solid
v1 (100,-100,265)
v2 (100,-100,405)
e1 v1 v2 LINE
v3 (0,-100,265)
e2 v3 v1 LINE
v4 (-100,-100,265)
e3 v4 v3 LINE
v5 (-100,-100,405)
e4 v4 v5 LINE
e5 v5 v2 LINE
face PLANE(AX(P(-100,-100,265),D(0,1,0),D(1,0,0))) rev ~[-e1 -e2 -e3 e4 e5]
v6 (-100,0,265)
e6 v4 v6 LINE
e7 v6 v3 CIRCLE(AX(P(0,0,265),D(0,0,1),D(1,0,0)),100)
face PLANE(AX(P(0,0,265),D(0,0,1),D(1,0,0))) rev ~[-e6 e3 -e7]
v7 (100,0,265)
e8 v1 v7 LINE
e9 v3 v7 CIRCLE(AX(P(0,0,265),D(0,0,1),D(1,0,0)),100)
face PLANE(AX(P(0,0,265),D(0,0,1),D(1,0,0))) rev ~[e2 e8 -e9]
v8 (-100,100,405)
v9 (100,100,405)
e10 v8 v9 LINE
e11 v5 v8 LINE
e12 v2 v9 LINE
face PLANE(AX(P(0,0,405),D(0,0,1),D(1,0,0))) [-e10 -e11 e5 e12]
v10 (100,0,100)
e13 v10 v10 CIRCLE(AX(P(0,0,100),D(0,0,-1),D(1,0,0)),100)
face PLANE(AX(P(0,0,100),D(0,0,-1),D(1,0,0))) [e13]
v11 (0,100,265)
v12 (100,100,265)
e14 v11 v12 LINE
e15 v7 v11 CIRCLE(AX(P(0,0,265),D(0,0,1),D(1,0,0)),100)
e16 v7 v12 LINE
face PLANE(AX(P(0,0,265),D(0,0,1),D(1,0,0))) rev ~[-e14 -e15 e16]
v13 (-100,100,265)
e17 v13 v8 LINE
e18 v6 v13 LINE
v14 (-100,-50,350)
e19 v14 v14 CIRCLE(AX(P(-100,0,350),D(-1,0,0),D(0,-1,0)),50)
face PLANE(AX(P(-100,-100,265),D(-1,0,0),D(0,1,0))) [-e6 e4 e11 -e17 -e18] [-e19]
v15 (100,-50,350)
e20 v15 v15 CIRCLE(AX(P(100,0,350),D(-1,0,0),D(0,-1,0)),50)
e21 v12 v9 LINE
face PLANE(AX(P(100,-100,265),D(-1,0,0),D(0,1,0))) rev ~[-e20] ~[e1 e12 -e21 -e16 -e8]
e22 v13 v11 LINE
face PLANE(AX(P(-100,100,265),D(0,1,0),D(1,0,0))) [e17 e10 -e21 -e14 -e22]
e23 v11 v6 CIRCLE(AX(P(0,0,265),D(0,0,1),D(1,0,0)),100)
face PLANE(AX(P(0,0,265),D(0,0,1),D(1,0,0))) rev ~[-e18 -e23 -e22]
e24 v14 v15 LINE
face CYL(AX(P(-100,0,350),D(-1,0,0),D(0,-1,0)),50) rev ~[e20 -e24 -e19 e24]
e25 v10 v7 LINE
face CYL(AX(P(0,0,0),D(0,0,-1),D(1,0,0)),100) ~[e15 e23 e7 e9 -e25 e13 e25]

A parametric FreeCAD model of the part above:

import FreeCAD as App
import Part
import Sketcher

V = App.Vector
Q = App.Units.Quantity


def add_polygon(sketch, points):
    """Adds a closed chain of lines whose ends are joined by coincident constraints."""
    first, n = sketch.GeometryCount, len(points)
    for a, b in zip(points, points[1:] + points[:1]):
        sketch.addGeometry(Part.LineSegment(App.Vector(*a, 0), App.Vector(*b, 0)), False)
    for i in range(n):
        sketch.addConstraint(Sketcher.Constraint("Coincident", first + i, 2, first + (i + 1) % n, 1))

doc = App.newDocument("Part")
body = doc.addObject("PartDesign::Body", "Body")

sketch1 = doc.addObject("Sketcher::SketchObject", "Sketch")
body.addObject(sketch1)
sketch1.AttachmentSupport = (doc.XY_Plane, [""])
sketch1.MapMode = "FlatFace"
sketch1.addGeometry(Part.Circle(V(0, 0, 0), V(0, 0, 1), 100), False)
sketch1.addConstraint([
    Sketcher.Constraint("Coincident", 0, 3, -1, 1),
    Sketcher.Constraint("Diameter", 0, Q("200 mm")),
])
pad1 = doc.addObject("PartDesign::Pad", "Pad")
body.addObject(pad1)
pad1.Profile = sketch1
pad1.Length = 265

sketch2 = doc.addObject("Sketcher::SketchObject", "Sketch001")
body.addObject(sketch2)
sketch2.AttachmentSupport = (doc.XY_Plane, [""])
sketch2.MapMode = "FlatFace"
sketch2.addGeometry(Part.Circle(V(0, 0, 0), V(0, 0, 1), 100), False)
sketch2.addConstraint([
    Sketcher.Constraint("Coincident", 0, 3, -1, 1),
    Sketcher.Constraint("Diameter", 0, Q("200 mm")),
])
pocket1 = doc.addObject("PartDesign::Pocket", "Pocket")
body.addObject(pocket1)
pocket1.Profile = sketch2
pocket1.Length = 100
pocket1.Reversed = True

sketch3 = doc.addObject("Sketcher::SketchObject", "Sketch002")
body.addObject(sketch3)
sketch3.AttachmentSupport = (doc.XY_Plane, [""])
sketch3.MapMode = "FlatFace"
sketch3.AttachmentOffset = App.Placement(V(0, 0, 265), App.Rotation())
add_polygon(sketch3, [(-100, 100), (-100, -100), (100, -100), (100, 100)])
sketch3.addConstraint([
    Sketcher.Constraint("Vertical", 0),
    Sketcher.Constraint("Horizontal", 1),
    Sketcher.Constraint("Vertical", 2),
    Sketcher.Constraint("Horizontal", 3),
    Sketcher.Constraint("Symmetric", 0, 2, 2, 2, -1, 1),
    Sketcher.Constraint("Equal", 3, 0),
    Sketcher.Constraint("DistanceX", 1, 1, 1, 2, Q("200 mm")),
])
pad2 = doc.addObject("PartDesign::Pad", "Pad001")
body.addObject(pad2)
pad2.Profile = sketch3
pad2.Length = 140

sketch4 = doc.addObject("Sketcher::SketchObject", "Sketch003")
body.addObject(sketch4)
sketch4.AttachmentSupport = (doc.YZ_Plane, [""])
sketch4.MapMode = "FlatFace"
sketch4.AttachmentOffset = App.Placement(V(0, 0, -100), App.Rotation())
sketch4.addGeometry(Part.Circle(V(0, 350, 0), V(0, 0, 1), 50), False)
sketch4.addConstraint([
    Sketcher.Constraint("PointOnObject", 0, 3, -2),
    Sketcher.Constraint("Diameter", 0, Q("100 mm")),
    Sketcher.Constraint("DistanceY", -1, 1, 0, 3, Q("350 mm")),
])
pocket2 = doc.addObject("PartDesign::Pocket", "Pocket001")
body.addObject(pocket2)
pocket2.Profile = sketch4
pocket2.Length = 200
pocket2.Reversed = True

doc.recompute()
